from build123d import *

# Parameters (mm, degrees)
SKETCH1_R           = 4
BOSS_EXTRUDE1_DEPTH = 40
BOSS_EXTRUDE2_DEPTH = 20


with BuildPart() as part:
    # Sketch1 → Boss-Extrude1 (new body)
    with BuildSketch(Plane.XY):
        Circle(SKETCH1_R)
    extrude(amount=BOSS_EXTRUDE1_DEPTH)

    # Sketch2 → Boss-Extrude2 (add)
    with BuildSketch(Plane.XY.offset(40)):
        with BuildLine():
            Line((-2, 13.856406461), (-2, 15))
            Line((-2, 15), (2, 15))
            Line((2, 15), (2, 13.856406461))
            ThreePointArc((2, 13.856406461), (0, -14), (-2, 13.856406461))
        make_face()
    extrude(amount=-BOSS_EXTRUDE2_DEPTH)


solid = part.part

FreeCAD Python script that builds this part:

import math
import FreeCAD as App
import Part
import Sketcher

V = App.Vector

doc = App.newDocument("Part")
body = doc.addObject("PartDesign::Body", "Body")

sketch1 = doc.addObject("Sketcher::SketchObject", "Sketch")
body.addObject(sketch1)
sketch1.AttachmentSupport = (doc.XY_Plane, [""])
sketch1.MapMode = "FlatFace"
sketch1.addGeometry(Part.Circle(V(0, 0, 0), V(0, 0, 1), 4), False)
sketch1.addConstraint([
    Sketcher.Constraint("Coincident", 0, 3, -1, 1),
    Sketcher.Constraint("Diameter", 0, 8.0),
])
pad1 = doc.addObject("PartDesign::Pad", "Pad")
body.addObject(pad1)
pad1.Profile = sketch1
pad1.Length = 40

sketch2 = doc.addObject("Sketcher::SketchObject", "Sketch001")
body.addObject(sketch2)
sketch2.AttachmentSupport = (doc.XY_Plane, [""])
sketch2.MapMode = "FlatFace"
sketch2.AttachmentOffset = App.Placement(V(0, 0, 40), App.Rotation())
sketch2.addGeometry([
    Part.LineSegment(V(-2, 15, 0), V(-2, 13.9, 0)),
    Part.ArcOfCircle(Part.Circle(V(0, 0, 0), V(0, 0, 1), 14), math.radians(98), math.radians(442)),
    Part.LineSegment(V(2, 13.9, 0), V(2, 15, 0)),
    Part.LineSegment(V(2, 15, 0), V(-2, 15, 0)),
], False)
sketch2.addConstraint([
    Sketcher.Constraint("Coincident", 0, 2, 1, 1),
    Sketcher.Constraint("Coincident", 1, 2, 2, 1),
    Sketcher.Constraint("Coincident", 2, 2, 3, 1),
    Sketcher.Constraint("Coincident", 3, 2, 0, 1),
    Sketcher.Constraint("Vertical", 0),
    Sketcher.Constraint("Vertical", 2),
    Sketcher.Constraint("Horizontal", 3),
    Sketcher.Constraint("Coincident", 1, 3, -1, 1),
    Sketcher.Constraint("Horizontal", 0, 2, 1, 2),
    Sketcher.Constraint("Radius", 1, 14.0),
    Sketcher.Constraint("DistanceX", 3, 2, 3, 1, 4.0),
    Sketcher.Constraint("DistanceY", -1, 1, 2, 2, 15.0),
])
pad2 = doc.addObject("PartDesign::Pad", "Pad001")
body.addObject(pad2)
pad2.Profile = sketch2
pad2.Length = 20
pad2.Reversed = True

doc.recompute()
